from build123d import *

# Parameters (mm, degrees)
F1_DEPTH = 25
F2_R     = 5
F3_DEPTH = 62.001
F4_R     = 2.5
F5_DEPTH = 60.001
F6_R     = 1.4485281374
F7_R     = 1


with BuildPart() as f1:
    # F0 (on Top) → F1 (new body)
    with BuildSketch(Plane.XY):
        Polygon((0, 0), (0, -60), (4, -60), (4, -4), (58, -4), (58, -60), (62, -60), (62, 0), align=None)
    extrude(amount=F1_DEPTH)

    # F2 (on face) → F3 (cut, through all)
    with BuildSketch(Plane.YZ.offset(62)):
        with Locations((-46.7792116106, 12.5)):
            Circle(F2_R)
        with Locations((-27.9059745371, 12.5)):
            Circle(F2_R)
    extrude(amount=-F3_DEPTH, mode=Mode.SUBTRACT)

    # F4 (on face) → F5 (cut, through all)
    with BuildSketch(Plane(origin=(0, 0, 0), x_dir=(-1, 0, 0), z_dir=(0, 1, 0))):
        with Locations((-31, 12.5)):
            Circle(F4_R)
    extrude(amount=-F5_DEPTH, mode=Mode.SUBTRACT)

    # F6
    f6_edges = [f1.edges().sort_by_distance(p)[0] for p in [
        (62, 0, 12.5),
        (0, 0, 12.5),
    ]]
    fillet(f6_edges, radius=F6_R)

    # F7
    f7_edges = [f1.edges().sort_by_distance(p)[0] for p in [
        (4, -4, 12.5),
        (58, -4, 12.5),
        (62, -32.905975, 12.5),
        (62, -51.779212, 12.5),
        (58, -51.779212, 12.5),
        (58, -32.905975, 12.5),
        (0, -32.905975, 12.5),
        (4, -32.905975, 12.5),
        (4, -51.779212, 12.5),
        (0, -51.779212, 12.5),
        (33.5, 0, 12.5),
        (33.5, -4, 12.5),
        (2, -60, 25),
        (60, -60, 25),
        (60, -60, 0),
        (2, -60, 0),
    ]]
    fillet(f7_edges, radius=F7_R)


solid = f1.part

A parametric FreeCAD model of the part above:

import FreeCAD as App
import Part
import Sketcher
from FreeCAD import Vector


def edges_at(feature, points):
    """Names of the edges that pass closest to the given points."""
    edges = feature.Shape.Edges
    near = lambda p: min(range(len(edges)), key=lambda i: edges[i].distToShape(Part.Vertex(*p))[0])
    return sorted({f"Edge{near(p) + 1}" for p in points})

doc = App.newDocument("Part")
body = doc.addObject("PartDesign::Body", "Body")

# Sketch on XY plane
sketch1 = body.newObject("Sketcher::SketchObject", "Sketch")
sketch1.AttachmentSupport = (doc.getObject("XY_Plane"), [""])
sketch1.MapMode = "FlatFace"
sketch1.addGeometry([
    Part.LineSegment(Vector(0, 0, 0), Vector(0, -60, 0)),  # 0
    Part.LineSegment(Vector(0, -60, 0), Vector(4, -60, 0)),  # 1
    Part.LineSegment(Vector(4, -60, 0), Vector(4, -4, 0)),  # 2
    Part.LineSegment(Vector(4, -4, 0), Vector(58, -4, 0)),  # 3
    Part.LineSegment(Vector(58, -4, 0), Vector(58, -60, 0)),  # 4
    Part.LineSegment(Vector(58, -60, 0), Vector(62, -60, 0)),  # 5
    Part.LineSegment(Vector(62, -60, 0), Vector(62, 0, 0)),  # 6
    Part.LineSegment(Vector(62, 0, 0), Vector(0, 0, 0)),  # 7
], False)
sketch1.addConstraint([
    Sketcher.Constraint("Coincident", 0, 2, 1, 1),
    Sketcher.Constraint("Coincident", 1, 2, 2, 1),
    Sketcher.Constraint("Coincident", 2, 2, 3, 1),
    Sketcher.Constraint("Coincident", 3, 2, 4, 1),
    Sketcher.Constraint("Coincident", 4, 2, 5, 1),
    Sketcher.Constraint("Coincident", 5, 2, 6, 1),
    Sketcher.Constraint("Coincident", 6, 2, 7, 1),
    Sketcher.Constraint("Coincident", 7, 2, 0, 1),
    Sketcher.Constraint("Vertical", 0),
    Sketcher.Constraint("Horizontal", 1),
    Sketcher.Constraint("Vertical", 2),
    Sketcher.Constraint("Horizontal", 3),
    Sketcher.Constraint("Vertical", 4),
    Sketcher.Constraint("Horizontal", 5),
    Sketcher.Constraint("Vertical", 6),
    Sketcher.Constraint("Horizontal", 7),
    Sketcher.Constraint("Coincident", 7, 2, -1, 1),
    Sketcher.Constraint("Horizontal", 1, 2, 4, 2),
    Sketcher.Constraint("Equal", 1, 5),
    Sketcher.Constraint("DistanceX", 1, 1, 1, 2, 4.0),
    Sketcher.Constraint("DistanceX", 3, 1, 3, 2, 54.0),
    Sketcher.Constraint("DistanceY", 0, 2, 0, 1, 60.0),
    Sketcher.Constraint("DistanceY", 2, 1, 2, 2, 56.0),
])
pad1 = body.newObject("PartDesign::Pad", "Pad")
pad1.Profile = sketch1
pad1.Length = 25

# Sketch on YZ plane
sketch2 = body.newObject("Sketcher::SketchObject", "Sketch001")
sketch2.AttachmentSupport = (doc.getObject("YZ_Plane"), [""])
sketch2.MapMode = "FlatFace"
sketch2.AttachmentOffset = App.Placement(Vector(0, 0, 62), App.Rotation())
sketch2.addGeometry([
    Part.Circle(Vector(-46.779212, 12.5, 0), Vector(0, 0, 1), 5),
    Part.Circle(Vector(-27.905975, 12.5, 0), Vector(0, 0, 1), 5),
], False)
sketch2.addConstraint([
    Sketcher.Constraint("Equal", 0, 1),
    Sketcher.Constraint("Horizontal", 0, 3, 1, 3),
    Sketcher.Constraint("Diameter", 0, 10.0),
    Sketcher.Constraint("DistanceY", -1, 1, 0, 3, 12.5),
    Sketcher.Constraint("DistanceX", 0, 3, -1, 1, 46.779212),
    Sketcher.Constraint("DistanceX", 1, 3, -1, 1, 27.905975),
])
pocket1 = body.newObject("PartDesign::Pocket", "Pocket")
pocket1.Profile = sketch2
pocket1.Type = "ThroughAll"

# Sketch on XZ plane
sketch3 = body.newObject("Sketcher::SketchObject", "Sketch002")
sketch3.AttachmentSupport = (doc.getObject("XZ_Plane"), [""])
sketch3.MapMode = "FlatFace"
sketch3.addGeometry(Part.Circle(Vector(31, 12.5, 0), Vector(0, 0, 1), 2.5), False)
sketch3.addConstraint([
    Sketcher.Constraint("Diameter", 0, 5.0),
    Sketcher.Constraint("DistanceX", -1, 1, 0, 3, 31.0),
    Sketcher.Constraint("DistanceY", -1, 1, 0, 3, 12.5),
])
pocket2 = body.newObject("PartDesign::Pocket", "Pocket001")
pocket2.Profile = sketch3
pocket2.Type = "ThroughAll"
pocket2.Reversed = True
doc.recompute()

fillet = body.newObject("PartDesign::Fillet", "Fillet")
fillet.Base = (pocket2, edges_at(pocket2, [(62, 0, 12.5), (0, 0, 12.5)]))
fillet.Radius = 1.448528
doc.recompute()

fillet2 = body.newObject("PartDesign::Fillet", "Fillet001")
fillet2.Base = (fillet, edges_at(fillet, [
    (4, -4, 12.5),
    (58, -4, 12.5),
    (62, -32.906, 12.5),
    (62, -51.779, 12.5),
    (58, -51.779, 12.5),
    (58, -32.906, 12.5),
    (0, -32.906, 12.5),
    (4, -32.906, 12.5),
    (4, -51.779, 12.5),
    (0, -51.779, 12.5),
    (33.5, 0, 12.5),
    (33.5, -4, 12.5),
    (2, -60, 25),
    (60, -60, 25),
    (60, -60, 0),
    (2, -60, 0),
]))
fillet2.Radius = 1

doc.recompute()
